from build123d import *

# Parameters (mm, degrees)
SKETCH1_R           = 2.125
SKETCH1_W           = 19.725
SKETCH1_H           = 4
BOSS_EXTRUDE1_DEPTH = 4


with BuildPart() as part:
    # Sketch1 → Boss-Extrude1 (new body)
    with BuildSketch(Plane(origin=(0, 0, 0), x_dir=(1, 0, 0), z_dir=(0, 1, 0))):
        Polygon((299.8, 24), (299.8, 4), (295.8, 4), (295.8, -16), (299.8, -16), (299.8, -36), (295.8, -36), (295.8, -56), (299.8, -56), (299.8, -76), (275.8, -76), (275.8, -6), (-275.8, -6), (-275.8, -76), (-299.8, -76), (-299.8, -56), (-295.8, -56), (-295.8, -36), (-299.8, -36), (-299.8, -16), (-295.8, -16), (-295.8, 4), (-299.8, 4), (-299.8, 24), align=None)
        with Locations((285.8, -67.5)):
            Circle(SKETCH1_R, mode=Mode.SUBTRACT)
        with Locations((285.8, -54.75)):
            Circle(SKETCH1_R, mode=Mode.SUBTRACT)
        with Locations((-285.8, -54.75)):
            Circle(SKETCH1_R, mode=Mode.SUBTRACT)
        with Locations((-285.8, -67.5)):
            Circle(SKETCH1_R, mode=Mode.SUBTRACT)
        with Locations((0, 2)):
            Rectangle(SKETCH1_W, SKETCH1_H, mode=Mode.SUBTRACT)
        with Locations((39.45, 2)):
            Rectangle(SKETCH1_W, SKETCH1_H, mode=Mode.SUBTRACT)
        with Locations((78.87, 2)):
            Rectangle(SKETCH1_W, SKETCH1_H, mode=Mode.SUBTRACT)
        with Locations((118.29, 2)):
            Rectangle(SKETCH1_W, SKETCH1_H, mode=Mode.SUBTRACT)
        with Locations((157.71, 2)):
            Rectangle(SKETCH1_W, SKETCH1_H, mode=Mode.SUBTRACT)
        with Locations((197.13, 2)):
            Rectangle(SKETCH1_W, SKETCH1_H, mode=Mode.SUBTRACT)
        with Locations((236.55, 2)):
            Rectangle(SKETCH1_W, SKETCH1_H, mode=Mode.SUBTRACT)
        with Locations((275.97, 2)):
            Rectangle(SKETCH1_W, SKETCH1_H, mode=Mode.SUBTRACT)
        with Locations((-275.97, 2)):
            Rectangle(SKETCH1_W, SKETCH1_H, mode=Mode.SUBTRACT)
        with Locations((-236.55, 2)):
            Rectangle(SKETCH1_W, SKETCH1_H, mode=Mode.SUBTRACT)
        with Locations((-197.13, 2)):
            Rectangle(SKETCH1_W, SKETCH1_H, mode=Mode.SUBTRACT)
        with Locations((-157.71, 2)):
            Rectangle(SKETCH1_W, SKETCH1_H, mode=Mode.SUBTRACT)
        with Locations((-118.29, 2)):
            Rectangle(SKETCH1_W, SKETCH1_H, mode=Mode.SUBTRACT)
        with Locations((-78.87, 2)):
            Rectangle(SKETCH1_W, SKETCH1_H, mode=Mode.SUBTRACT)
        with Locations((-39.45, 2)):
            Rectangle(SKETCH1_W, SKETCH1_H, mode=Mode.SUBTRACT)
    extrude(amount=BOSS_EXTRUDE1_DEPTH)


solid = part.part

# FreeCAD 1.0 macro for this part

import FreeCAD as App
import Part
import Sketcher
Q = App.Units.Quantity


def add_polygon(sketch, points):
    """Adds a closed chain of lines whose ends are joined by coincident constraints."""
    first, n = sketch.GeometryCount, len(points)
    for a, b in zip(points, points[1:] + points[:1]):
        sketch.addGeometry(Part.LineSegment(App.Vector(*a, 0), App.Vector(*b, 0)), False)
    for i in range(n):
        sketch.addConstraint(Sketcher.Constraint("Coincident", first + i, 2, first + (i + 1) % n, 1))

doc = App.newDocument("Part")
body = doc.addObject("PartDesign::Body", "Body")

sketch1 = body.newObject("Sketcher::SketchObject", "Sketch")
sketch1.AttachmentSupport = (doc.getObject("XZ_Plane"), [""])
sketch1.MapMode = "FlatFace"
add_polygon(sketch1, [(299.8, -4), (299.8, -24), (-299.8, -24), (-299.8, -4), (-295.8, -4), (-295.8, 16), (-299.8, 16), (-299.8, 36), (-295.8, 36), (-295.8, 56), (-299.8, 56), (-299.8, 76), (-275.8, 76), (-275.8, 6), (275.8, 6), (275.8, 76), (299.8, 76), (299.8, 56), (295.8, 56), (295.8, 36), (299.8, 36), (299.8, 16), (295.8, 16), (295.8, -4)])
sketch1.addGeometry(Part.Circle(App.Vector(285.8, 67.5, 0), App.Vector(0, 0, 1), 2.1), False)
sketch1.addGeometry(Part.Circle(App.Vector(285.8, 54.8, 0), App.Vector(0, 0, 1), 2.1), False)
sketch1.addGeometry(Part.Circle(App.Vector(-285.8, 67.5, 0), App.Vector(0, 0, 1), 2.1), False)
sketch1.addGeometry(Part.Circle(App.Vector(-285.8, 54.8, 0), App.Vector(0, 0, 1), 2.1), False)
add_polygon(sketch1, [(266.1, 0), (266.1, -4), (285.8, -4), (285.8, 0)])
add_polygon(sketch1, [(226.7, 0), (226.7, -4), (246.4, -4), (246.4, 0)])
add_polygon(sketch1, [(187.3, 0), (187.3, -4), (207, -4), (207, 0)])
add_polygon(sketch1, [(147.8, 0), (147.8, -4), (167.6, -4), (167.6, 0)])
add_polygon(sketch1, [(108.4, 0), (108.4, -4), (128.2, -4), (128.2, 0)])
add_polygon(sketch1, [(69, 0), (69, -4), (88.7, -4), (88.7, 0)])
add_polygon(sketch1, [(29.6, 0), (29.6, -4), (49.3, -4), (49.3, 0)])
add_polygon(sketch1, [(-9.9, 0), (-9.9, -4), (9.9, -4), (9.9, 0)])
add_polygon(sketch1, [(-49.3, 0), (-49.3, -4), (-29.6, -4), (-29.6, 0)])
add_polygon(sketch1, [(-88.7, 0), (-88.7, -4), (-69, -4), (-69, 0)])
add_polygon(sketch1, [(-128.2, 0), (-128.2, -4), (-108.4, -4), (-108.4, 0)])
add_polygon(sketch1, [(-167.6, 0), (-167.6, -4), (-147.8, -4), (-147.8, 0)])
add_polygon(sketch1, [(-207, 0), (-207, -4), (-187.3, -4), (-187.3, 0)])
add_polygon(sketch1, [(-246.4, 0), (-246.4, -4), (-226.7, -4), (-226.7, 0)])
add_polygon(sketch1, [(-285.8, 0), (-285.8, -4), (-266.1, -4), (-266.1, 0)])
sketch1.addConstraint([
    Sketcher.Constraint("Vertical", 0),
    Sketcher.Constraint("Horizontal", 1),
    Sketcher.Constraint("Vertical", 2),
    Sketcher.Constraint("Horizontal", 3),
    Sketcher.Constraint("Vertical", 4),
    Sketcher.Constraint("Horizontal", 5),
    Sketcher.Constraint("Vertical", 6),
    Sketcher.Constraint("Horizontal", 7),
    Sketcher.Constraint("Vertical", 8),
    Sketcher.Constraint("Horizontal", 9),
    Sketcher.Constraint("Vertical", 10),
    Sketcher.Constraint("Horizontal", 11),
    Sketcher.Constraint("Vertical", 12),
    Sketcher.Constraint("Horizontal", 13),
    Sketcher.Constraint("Vertical", 14),
    Sketcher.Constraint("Horizontal", 15),
    Sketcher.Constraint("Vertical", 16),
    Sketcher.Constraint("Horizontal", 17),
    Sketcher.Constraint("Vertical", 18),
    Sketcher.Constraint("Horizontal", 19),
    Sketcher.Constraint("Vertical", 20),
    Sketcher.Constraint("Horizontal", 21),
    Sketcher.Constraint("Vertical", 22),
    Sketcher.Constraint("Horizontal", 23),
    Sketcher.Constraint("Vertical", 28),
    Sketcher.Constraint("Horizontal", 29),
    Sketcher.Constraint("Vertical", 30),
    Sketcher.Constraint("Horizontal", 31),
    Sketcher.Constraint("Vertical", 32),
    Sketcher.Constraint("Horizontal", 33),
    Sketcher.Constraint("Vertical", 34),
    Sketcher.Constraint("Horizontal", 35),
    Sketcher.Constraint("Vertical", 36),
    Sketcher.Constraint("Horizontal", 37),
    Sketcher.Constraint("Vertical", 38),
    Sketcher.Constraint("Horizontal", 39),
    Sketcher.Constraint("Vertical", 40),
    Sketcher.Constraint("Horizontal", 41),
    Sketcher.Constraint("Vertical", 42),
    Sketcher.Constraint("Horizontal", 43),
    Sketcher.Constraint("Vertical", 44),
    Sketcher.Constraint("Horizontal", 45),
    Sketcher.Constraint("Vertical", 46),
    Sketcher.Constraint("Horizontal", 47),
    Sketcher.Constraint("Vertical", 48),
    Sketcher.Constraint("Horizontal", 49),
    Sketcher.Constraint("Vertical", 50),
    Sketcher.Constraint("Horizontal", 51),
    Sketcher.Constraint("Vertical", 52),
    Sketcher.Constraint("Horizontal", 53),
    Sketcher.Constraint("Vertical", 54),
    Sketcher.Constraint("Horizontal", 55),
    Sketcher.Constraint("Vertical", 56),
    Sketcher.Constraint("Horizontal", 57),
    Sketcher.Constraint("Vertical", 58),
    Sketcher.Constraint("Horizontal", 59),
    Sketcher.Constraint("Vertical", 60),
    Sketcher.Constraint("Horizontal", 61),
    Sketcher.Constraint("Vertical", 62),
    Sketcher.Constraint("Horizontal", 63),
    Sketcher.Constraint("Vertical", 64),
    Sketcher.Constraint("Horizontal", 65),
    Sketcher.Constraint("Vertical", 66),
    Sketcher.Constraint("Horizontal", 67),
    Sketcher.Constraint("Vertical", 68),
    Sketcher.Constraint("Horizontal", 69),
    Sketcher.Constraint("Vertical", 70),
    Sketcher.Constraint("Horizontal", 71),
    Sketcher.Constraint("Vertical", 72),
    Sketcher.Constraint("Horizontal", 73),
    Sketcher.Constraint("Vertical", 74),
    Sketcher.Constraint("Horizontal", 75),
    Sketcher.Constraint("Vertical", 76),
    Sketcher.Constraint("Horizontal", 77),
    Sketcher.Constraint("Vertical", 78),
    Sketcher.Constraint("Horizontal", 79),
    Sketcher.Constraint("Vertical", 80),
    Sketcher.Constraint("Horizontal", 81),
    Sketcher.Constraint("Vertical", 82),
    Sketcher.Constraint("Horizontal", 83),
    Sketcher.Constraint("Vertical", 84),
    Sketcher.Constraint("Horizontal", 85),
    Sketcher.Constraint("Vertical", 86),
    Sketcher.Constraint("Horizontal", 87),
    Sketcher.Constraint("Equal", 24, 25),
    Sketcher.Constraint("Equal", 25, 26),
    Sketcher.Constraint("Equal", 26, 27),
    Sketcher.Constraint("Symmetric", 58, 2, 59, 2, -1, 1),
    Sketcher.Constraint("Symmetric", 55, 2, 62, 2, -1, 1),
    Sketcher.Constraint("Symmetric", 51, 2, 66, 2, -1, 1),
    Sketcher.Constraint("Symmetric", 47, 2, 70, 2, -1, 1),
    Sketcher.Constraint("Symmetric", 43, 2, 74, 2, -1, 1),
    Sketcher.Constraint("Symmetric", 39, 2, 78, 2, -1, 1),
    Sketcher.Constraint("Symmetric", 35, 2, 82, 2, -1, 1),
    Sketcher.Constraint("Symmetric", 31, 2, 86, 2, -1, 1),
    Sketcher.Constraint("Symmetric", 24, 3, 26, 3, -2),
    Sketcher.Constraint("Symmetric", 25, 3, 27, 3, -2),
    Sketcher.Constraint("Symmetric", 11, 2, 14, 2, -2),
    Sketcher.Constraint("Symmetric", 9, 2, 16, 2, -2),
    Sketcher.Constraint("Symmetric", 7, 2, 18, 2, -2),
    Sketcher.Constraint("Symmetric", 5, 2, 20, 2, -2),
    Sketcher.Constraint("Symmetric", 3, 2, 22, 2, -2),
    Sketcher.Constraint("Symmetric", 53, 2, 60, 2, -2),
    Sketcher.Constraint("Symmetric", 49, 2, 64, 2, -2),
    Sketcher.Constraint("Symmetric", 45, 2, 68, 2, -2),
    Sketcher.Constraint("Symmetric", 41, 2, 72, 2, -2),
    Sketcher.Constraint("Symmetric", 37, 2, 76, 2, -2),
    Sketcher.Constraint("Symmetric", 33, 2, 80, 2, -2),
    Sketcher.Constraint("Symmetric", 29, 2, 84, 2, -2),
    Sketcher.Constraint("PointOnObject", 30, 2, -1),
    Sketcher.Constraint("PointOnObject", 34, 2, -1),
    Sketcher.Constraint("PointOnObject", 38, 2, -1),
    Sketcher.Constraint("PointOnObject", 42, 2, -1),
    Sketcher.Constraint("PointOnObject", 46, 2, -1),
    Sketcher.Constraint("PointOnObject", 50, 2, -1),
    Sketcher.Constraint("PointOnObject", 54, 2, -1),
    Sketcher.Constraint("Horizontal", 23, 2, 28, 2),
    Sketcher.Constraint("Horizontal", 29, 2, 32, 2),
    Sketcher.Constraint("Horizontal", 33, 2, 36, 2),
    Sketcher.Constraint("Horizontal", 37, 2, 40, 2),
    Sketcher.Constraint("Horizontal", 41, 2, 44, 2),
    Sketcher.Constraint("Horizontal", 45, 2, 48, 2),
    Sketcher.Constraint("Horizontal", 49, 2, 52, 2),
    Sketcher.Constraint("Horizontal", 53, 2, 56, 2),
    Sketcher.Constraint("Vertical", 24, 3, 25, 3),
    Sketcher.Constraint("Vertical", 2, 2, 5, 2),
    Sketcher.Constraint("Vertical", 4, 2, 7, 2),
    Sketcher.Constraint("Vertical", 6, 2, 9, 2),
    Sketcher.Constraint("Vertical", 0, 2, 15, 2),
    Sketcher.Constraint("Equal", 31, 33),
    Sketcher.Constraint("Equal", 35, 37),
    Sketcher.Constraint("Equal", 39, 41),
    Sketcher.Constraint("Equal", 43, 45),
    Sketcher.Constraint("Equal", 47, 49),
    Sketcher.Constraint("Equal", 51, 53),
    Sketcher.Constraint("Equal", 55, 57),
    Sketcher.Constraint("Equal", 2, 4),
    Sketcher.Constraint("Equal", 4, 6),
    Sketcher.Constraint("Equal", 6, 8),
    Sketcher.Constraint("Equal", 8, 10),
    Sketcher.Constraint("Equal", 23, 28),
    Sketcher.Constraint("Diameter", 24, Q("4.25 mm")),
    Sketcher.Constraint("DistanceX", 3, 1, 3, 2, Q("4 mm")),
    Sketcher.Constraint("DistanceX", 11, 1, 11, 2, Q("24 mm")),
    Sketcher.Constraint("DistanceY", 0, 2, 0, 1, Q("20 mm")),
    Sketcher.Constraint("DistanceY", 12, 2, 12, 1, Q("70 mm")),
    Sketcher.Constraint("DistanceX", 1, 2, 1, 1, Q("599.6 mm")),
    Sketcher.Constraint("DistanceX", -1, 1, 24, 3, Q("285.8 mm")),
    Sketcher.Constraint("DistanceY", -1, 1, 24, 3, Q("67.5 mm")),
    Sketcher.Constraint("DistanceX", 29, 1, 29, 2, Q("19.725 mm")),
    Sketcher.Constraint("DistanceY", -1, 1, 25, 3, Q("54.75 mm")),
    Sketcher.Constraint("DistanceX", -1, 1, 28, 2, Q("266.1075 mm")),
    Sketcher.Constraint("DistanceX", -1, 1, 32, 2, Q("226.6875 mm")),
    Sketcher.Constraint("DistanceX", -1, 1, 36, 2, Q("187.2675 mm")),
    Sketcher.Constraint("DistanceX", -1, 1, 40, 2, Q("147.8475 mm")),
    Sketcher.Constraint("DistanceX", -1, 1, 44, 2, Q("108.4275 mm")),
    Sketcher.Constraint("DistanceX", -1, 1, 48, 2, Q("69.0075 mm")),
    Sketcher.Constraint("DistanceX", -1, 1, 52, 2, Q("29.5875 mm")),
])
pad1 = body.newObject("PartDesign::Pad", "Pad")
pad1.Profile = sketch1
pad1.Length = 4
pad1.Reversed = True

doc.recompute()
